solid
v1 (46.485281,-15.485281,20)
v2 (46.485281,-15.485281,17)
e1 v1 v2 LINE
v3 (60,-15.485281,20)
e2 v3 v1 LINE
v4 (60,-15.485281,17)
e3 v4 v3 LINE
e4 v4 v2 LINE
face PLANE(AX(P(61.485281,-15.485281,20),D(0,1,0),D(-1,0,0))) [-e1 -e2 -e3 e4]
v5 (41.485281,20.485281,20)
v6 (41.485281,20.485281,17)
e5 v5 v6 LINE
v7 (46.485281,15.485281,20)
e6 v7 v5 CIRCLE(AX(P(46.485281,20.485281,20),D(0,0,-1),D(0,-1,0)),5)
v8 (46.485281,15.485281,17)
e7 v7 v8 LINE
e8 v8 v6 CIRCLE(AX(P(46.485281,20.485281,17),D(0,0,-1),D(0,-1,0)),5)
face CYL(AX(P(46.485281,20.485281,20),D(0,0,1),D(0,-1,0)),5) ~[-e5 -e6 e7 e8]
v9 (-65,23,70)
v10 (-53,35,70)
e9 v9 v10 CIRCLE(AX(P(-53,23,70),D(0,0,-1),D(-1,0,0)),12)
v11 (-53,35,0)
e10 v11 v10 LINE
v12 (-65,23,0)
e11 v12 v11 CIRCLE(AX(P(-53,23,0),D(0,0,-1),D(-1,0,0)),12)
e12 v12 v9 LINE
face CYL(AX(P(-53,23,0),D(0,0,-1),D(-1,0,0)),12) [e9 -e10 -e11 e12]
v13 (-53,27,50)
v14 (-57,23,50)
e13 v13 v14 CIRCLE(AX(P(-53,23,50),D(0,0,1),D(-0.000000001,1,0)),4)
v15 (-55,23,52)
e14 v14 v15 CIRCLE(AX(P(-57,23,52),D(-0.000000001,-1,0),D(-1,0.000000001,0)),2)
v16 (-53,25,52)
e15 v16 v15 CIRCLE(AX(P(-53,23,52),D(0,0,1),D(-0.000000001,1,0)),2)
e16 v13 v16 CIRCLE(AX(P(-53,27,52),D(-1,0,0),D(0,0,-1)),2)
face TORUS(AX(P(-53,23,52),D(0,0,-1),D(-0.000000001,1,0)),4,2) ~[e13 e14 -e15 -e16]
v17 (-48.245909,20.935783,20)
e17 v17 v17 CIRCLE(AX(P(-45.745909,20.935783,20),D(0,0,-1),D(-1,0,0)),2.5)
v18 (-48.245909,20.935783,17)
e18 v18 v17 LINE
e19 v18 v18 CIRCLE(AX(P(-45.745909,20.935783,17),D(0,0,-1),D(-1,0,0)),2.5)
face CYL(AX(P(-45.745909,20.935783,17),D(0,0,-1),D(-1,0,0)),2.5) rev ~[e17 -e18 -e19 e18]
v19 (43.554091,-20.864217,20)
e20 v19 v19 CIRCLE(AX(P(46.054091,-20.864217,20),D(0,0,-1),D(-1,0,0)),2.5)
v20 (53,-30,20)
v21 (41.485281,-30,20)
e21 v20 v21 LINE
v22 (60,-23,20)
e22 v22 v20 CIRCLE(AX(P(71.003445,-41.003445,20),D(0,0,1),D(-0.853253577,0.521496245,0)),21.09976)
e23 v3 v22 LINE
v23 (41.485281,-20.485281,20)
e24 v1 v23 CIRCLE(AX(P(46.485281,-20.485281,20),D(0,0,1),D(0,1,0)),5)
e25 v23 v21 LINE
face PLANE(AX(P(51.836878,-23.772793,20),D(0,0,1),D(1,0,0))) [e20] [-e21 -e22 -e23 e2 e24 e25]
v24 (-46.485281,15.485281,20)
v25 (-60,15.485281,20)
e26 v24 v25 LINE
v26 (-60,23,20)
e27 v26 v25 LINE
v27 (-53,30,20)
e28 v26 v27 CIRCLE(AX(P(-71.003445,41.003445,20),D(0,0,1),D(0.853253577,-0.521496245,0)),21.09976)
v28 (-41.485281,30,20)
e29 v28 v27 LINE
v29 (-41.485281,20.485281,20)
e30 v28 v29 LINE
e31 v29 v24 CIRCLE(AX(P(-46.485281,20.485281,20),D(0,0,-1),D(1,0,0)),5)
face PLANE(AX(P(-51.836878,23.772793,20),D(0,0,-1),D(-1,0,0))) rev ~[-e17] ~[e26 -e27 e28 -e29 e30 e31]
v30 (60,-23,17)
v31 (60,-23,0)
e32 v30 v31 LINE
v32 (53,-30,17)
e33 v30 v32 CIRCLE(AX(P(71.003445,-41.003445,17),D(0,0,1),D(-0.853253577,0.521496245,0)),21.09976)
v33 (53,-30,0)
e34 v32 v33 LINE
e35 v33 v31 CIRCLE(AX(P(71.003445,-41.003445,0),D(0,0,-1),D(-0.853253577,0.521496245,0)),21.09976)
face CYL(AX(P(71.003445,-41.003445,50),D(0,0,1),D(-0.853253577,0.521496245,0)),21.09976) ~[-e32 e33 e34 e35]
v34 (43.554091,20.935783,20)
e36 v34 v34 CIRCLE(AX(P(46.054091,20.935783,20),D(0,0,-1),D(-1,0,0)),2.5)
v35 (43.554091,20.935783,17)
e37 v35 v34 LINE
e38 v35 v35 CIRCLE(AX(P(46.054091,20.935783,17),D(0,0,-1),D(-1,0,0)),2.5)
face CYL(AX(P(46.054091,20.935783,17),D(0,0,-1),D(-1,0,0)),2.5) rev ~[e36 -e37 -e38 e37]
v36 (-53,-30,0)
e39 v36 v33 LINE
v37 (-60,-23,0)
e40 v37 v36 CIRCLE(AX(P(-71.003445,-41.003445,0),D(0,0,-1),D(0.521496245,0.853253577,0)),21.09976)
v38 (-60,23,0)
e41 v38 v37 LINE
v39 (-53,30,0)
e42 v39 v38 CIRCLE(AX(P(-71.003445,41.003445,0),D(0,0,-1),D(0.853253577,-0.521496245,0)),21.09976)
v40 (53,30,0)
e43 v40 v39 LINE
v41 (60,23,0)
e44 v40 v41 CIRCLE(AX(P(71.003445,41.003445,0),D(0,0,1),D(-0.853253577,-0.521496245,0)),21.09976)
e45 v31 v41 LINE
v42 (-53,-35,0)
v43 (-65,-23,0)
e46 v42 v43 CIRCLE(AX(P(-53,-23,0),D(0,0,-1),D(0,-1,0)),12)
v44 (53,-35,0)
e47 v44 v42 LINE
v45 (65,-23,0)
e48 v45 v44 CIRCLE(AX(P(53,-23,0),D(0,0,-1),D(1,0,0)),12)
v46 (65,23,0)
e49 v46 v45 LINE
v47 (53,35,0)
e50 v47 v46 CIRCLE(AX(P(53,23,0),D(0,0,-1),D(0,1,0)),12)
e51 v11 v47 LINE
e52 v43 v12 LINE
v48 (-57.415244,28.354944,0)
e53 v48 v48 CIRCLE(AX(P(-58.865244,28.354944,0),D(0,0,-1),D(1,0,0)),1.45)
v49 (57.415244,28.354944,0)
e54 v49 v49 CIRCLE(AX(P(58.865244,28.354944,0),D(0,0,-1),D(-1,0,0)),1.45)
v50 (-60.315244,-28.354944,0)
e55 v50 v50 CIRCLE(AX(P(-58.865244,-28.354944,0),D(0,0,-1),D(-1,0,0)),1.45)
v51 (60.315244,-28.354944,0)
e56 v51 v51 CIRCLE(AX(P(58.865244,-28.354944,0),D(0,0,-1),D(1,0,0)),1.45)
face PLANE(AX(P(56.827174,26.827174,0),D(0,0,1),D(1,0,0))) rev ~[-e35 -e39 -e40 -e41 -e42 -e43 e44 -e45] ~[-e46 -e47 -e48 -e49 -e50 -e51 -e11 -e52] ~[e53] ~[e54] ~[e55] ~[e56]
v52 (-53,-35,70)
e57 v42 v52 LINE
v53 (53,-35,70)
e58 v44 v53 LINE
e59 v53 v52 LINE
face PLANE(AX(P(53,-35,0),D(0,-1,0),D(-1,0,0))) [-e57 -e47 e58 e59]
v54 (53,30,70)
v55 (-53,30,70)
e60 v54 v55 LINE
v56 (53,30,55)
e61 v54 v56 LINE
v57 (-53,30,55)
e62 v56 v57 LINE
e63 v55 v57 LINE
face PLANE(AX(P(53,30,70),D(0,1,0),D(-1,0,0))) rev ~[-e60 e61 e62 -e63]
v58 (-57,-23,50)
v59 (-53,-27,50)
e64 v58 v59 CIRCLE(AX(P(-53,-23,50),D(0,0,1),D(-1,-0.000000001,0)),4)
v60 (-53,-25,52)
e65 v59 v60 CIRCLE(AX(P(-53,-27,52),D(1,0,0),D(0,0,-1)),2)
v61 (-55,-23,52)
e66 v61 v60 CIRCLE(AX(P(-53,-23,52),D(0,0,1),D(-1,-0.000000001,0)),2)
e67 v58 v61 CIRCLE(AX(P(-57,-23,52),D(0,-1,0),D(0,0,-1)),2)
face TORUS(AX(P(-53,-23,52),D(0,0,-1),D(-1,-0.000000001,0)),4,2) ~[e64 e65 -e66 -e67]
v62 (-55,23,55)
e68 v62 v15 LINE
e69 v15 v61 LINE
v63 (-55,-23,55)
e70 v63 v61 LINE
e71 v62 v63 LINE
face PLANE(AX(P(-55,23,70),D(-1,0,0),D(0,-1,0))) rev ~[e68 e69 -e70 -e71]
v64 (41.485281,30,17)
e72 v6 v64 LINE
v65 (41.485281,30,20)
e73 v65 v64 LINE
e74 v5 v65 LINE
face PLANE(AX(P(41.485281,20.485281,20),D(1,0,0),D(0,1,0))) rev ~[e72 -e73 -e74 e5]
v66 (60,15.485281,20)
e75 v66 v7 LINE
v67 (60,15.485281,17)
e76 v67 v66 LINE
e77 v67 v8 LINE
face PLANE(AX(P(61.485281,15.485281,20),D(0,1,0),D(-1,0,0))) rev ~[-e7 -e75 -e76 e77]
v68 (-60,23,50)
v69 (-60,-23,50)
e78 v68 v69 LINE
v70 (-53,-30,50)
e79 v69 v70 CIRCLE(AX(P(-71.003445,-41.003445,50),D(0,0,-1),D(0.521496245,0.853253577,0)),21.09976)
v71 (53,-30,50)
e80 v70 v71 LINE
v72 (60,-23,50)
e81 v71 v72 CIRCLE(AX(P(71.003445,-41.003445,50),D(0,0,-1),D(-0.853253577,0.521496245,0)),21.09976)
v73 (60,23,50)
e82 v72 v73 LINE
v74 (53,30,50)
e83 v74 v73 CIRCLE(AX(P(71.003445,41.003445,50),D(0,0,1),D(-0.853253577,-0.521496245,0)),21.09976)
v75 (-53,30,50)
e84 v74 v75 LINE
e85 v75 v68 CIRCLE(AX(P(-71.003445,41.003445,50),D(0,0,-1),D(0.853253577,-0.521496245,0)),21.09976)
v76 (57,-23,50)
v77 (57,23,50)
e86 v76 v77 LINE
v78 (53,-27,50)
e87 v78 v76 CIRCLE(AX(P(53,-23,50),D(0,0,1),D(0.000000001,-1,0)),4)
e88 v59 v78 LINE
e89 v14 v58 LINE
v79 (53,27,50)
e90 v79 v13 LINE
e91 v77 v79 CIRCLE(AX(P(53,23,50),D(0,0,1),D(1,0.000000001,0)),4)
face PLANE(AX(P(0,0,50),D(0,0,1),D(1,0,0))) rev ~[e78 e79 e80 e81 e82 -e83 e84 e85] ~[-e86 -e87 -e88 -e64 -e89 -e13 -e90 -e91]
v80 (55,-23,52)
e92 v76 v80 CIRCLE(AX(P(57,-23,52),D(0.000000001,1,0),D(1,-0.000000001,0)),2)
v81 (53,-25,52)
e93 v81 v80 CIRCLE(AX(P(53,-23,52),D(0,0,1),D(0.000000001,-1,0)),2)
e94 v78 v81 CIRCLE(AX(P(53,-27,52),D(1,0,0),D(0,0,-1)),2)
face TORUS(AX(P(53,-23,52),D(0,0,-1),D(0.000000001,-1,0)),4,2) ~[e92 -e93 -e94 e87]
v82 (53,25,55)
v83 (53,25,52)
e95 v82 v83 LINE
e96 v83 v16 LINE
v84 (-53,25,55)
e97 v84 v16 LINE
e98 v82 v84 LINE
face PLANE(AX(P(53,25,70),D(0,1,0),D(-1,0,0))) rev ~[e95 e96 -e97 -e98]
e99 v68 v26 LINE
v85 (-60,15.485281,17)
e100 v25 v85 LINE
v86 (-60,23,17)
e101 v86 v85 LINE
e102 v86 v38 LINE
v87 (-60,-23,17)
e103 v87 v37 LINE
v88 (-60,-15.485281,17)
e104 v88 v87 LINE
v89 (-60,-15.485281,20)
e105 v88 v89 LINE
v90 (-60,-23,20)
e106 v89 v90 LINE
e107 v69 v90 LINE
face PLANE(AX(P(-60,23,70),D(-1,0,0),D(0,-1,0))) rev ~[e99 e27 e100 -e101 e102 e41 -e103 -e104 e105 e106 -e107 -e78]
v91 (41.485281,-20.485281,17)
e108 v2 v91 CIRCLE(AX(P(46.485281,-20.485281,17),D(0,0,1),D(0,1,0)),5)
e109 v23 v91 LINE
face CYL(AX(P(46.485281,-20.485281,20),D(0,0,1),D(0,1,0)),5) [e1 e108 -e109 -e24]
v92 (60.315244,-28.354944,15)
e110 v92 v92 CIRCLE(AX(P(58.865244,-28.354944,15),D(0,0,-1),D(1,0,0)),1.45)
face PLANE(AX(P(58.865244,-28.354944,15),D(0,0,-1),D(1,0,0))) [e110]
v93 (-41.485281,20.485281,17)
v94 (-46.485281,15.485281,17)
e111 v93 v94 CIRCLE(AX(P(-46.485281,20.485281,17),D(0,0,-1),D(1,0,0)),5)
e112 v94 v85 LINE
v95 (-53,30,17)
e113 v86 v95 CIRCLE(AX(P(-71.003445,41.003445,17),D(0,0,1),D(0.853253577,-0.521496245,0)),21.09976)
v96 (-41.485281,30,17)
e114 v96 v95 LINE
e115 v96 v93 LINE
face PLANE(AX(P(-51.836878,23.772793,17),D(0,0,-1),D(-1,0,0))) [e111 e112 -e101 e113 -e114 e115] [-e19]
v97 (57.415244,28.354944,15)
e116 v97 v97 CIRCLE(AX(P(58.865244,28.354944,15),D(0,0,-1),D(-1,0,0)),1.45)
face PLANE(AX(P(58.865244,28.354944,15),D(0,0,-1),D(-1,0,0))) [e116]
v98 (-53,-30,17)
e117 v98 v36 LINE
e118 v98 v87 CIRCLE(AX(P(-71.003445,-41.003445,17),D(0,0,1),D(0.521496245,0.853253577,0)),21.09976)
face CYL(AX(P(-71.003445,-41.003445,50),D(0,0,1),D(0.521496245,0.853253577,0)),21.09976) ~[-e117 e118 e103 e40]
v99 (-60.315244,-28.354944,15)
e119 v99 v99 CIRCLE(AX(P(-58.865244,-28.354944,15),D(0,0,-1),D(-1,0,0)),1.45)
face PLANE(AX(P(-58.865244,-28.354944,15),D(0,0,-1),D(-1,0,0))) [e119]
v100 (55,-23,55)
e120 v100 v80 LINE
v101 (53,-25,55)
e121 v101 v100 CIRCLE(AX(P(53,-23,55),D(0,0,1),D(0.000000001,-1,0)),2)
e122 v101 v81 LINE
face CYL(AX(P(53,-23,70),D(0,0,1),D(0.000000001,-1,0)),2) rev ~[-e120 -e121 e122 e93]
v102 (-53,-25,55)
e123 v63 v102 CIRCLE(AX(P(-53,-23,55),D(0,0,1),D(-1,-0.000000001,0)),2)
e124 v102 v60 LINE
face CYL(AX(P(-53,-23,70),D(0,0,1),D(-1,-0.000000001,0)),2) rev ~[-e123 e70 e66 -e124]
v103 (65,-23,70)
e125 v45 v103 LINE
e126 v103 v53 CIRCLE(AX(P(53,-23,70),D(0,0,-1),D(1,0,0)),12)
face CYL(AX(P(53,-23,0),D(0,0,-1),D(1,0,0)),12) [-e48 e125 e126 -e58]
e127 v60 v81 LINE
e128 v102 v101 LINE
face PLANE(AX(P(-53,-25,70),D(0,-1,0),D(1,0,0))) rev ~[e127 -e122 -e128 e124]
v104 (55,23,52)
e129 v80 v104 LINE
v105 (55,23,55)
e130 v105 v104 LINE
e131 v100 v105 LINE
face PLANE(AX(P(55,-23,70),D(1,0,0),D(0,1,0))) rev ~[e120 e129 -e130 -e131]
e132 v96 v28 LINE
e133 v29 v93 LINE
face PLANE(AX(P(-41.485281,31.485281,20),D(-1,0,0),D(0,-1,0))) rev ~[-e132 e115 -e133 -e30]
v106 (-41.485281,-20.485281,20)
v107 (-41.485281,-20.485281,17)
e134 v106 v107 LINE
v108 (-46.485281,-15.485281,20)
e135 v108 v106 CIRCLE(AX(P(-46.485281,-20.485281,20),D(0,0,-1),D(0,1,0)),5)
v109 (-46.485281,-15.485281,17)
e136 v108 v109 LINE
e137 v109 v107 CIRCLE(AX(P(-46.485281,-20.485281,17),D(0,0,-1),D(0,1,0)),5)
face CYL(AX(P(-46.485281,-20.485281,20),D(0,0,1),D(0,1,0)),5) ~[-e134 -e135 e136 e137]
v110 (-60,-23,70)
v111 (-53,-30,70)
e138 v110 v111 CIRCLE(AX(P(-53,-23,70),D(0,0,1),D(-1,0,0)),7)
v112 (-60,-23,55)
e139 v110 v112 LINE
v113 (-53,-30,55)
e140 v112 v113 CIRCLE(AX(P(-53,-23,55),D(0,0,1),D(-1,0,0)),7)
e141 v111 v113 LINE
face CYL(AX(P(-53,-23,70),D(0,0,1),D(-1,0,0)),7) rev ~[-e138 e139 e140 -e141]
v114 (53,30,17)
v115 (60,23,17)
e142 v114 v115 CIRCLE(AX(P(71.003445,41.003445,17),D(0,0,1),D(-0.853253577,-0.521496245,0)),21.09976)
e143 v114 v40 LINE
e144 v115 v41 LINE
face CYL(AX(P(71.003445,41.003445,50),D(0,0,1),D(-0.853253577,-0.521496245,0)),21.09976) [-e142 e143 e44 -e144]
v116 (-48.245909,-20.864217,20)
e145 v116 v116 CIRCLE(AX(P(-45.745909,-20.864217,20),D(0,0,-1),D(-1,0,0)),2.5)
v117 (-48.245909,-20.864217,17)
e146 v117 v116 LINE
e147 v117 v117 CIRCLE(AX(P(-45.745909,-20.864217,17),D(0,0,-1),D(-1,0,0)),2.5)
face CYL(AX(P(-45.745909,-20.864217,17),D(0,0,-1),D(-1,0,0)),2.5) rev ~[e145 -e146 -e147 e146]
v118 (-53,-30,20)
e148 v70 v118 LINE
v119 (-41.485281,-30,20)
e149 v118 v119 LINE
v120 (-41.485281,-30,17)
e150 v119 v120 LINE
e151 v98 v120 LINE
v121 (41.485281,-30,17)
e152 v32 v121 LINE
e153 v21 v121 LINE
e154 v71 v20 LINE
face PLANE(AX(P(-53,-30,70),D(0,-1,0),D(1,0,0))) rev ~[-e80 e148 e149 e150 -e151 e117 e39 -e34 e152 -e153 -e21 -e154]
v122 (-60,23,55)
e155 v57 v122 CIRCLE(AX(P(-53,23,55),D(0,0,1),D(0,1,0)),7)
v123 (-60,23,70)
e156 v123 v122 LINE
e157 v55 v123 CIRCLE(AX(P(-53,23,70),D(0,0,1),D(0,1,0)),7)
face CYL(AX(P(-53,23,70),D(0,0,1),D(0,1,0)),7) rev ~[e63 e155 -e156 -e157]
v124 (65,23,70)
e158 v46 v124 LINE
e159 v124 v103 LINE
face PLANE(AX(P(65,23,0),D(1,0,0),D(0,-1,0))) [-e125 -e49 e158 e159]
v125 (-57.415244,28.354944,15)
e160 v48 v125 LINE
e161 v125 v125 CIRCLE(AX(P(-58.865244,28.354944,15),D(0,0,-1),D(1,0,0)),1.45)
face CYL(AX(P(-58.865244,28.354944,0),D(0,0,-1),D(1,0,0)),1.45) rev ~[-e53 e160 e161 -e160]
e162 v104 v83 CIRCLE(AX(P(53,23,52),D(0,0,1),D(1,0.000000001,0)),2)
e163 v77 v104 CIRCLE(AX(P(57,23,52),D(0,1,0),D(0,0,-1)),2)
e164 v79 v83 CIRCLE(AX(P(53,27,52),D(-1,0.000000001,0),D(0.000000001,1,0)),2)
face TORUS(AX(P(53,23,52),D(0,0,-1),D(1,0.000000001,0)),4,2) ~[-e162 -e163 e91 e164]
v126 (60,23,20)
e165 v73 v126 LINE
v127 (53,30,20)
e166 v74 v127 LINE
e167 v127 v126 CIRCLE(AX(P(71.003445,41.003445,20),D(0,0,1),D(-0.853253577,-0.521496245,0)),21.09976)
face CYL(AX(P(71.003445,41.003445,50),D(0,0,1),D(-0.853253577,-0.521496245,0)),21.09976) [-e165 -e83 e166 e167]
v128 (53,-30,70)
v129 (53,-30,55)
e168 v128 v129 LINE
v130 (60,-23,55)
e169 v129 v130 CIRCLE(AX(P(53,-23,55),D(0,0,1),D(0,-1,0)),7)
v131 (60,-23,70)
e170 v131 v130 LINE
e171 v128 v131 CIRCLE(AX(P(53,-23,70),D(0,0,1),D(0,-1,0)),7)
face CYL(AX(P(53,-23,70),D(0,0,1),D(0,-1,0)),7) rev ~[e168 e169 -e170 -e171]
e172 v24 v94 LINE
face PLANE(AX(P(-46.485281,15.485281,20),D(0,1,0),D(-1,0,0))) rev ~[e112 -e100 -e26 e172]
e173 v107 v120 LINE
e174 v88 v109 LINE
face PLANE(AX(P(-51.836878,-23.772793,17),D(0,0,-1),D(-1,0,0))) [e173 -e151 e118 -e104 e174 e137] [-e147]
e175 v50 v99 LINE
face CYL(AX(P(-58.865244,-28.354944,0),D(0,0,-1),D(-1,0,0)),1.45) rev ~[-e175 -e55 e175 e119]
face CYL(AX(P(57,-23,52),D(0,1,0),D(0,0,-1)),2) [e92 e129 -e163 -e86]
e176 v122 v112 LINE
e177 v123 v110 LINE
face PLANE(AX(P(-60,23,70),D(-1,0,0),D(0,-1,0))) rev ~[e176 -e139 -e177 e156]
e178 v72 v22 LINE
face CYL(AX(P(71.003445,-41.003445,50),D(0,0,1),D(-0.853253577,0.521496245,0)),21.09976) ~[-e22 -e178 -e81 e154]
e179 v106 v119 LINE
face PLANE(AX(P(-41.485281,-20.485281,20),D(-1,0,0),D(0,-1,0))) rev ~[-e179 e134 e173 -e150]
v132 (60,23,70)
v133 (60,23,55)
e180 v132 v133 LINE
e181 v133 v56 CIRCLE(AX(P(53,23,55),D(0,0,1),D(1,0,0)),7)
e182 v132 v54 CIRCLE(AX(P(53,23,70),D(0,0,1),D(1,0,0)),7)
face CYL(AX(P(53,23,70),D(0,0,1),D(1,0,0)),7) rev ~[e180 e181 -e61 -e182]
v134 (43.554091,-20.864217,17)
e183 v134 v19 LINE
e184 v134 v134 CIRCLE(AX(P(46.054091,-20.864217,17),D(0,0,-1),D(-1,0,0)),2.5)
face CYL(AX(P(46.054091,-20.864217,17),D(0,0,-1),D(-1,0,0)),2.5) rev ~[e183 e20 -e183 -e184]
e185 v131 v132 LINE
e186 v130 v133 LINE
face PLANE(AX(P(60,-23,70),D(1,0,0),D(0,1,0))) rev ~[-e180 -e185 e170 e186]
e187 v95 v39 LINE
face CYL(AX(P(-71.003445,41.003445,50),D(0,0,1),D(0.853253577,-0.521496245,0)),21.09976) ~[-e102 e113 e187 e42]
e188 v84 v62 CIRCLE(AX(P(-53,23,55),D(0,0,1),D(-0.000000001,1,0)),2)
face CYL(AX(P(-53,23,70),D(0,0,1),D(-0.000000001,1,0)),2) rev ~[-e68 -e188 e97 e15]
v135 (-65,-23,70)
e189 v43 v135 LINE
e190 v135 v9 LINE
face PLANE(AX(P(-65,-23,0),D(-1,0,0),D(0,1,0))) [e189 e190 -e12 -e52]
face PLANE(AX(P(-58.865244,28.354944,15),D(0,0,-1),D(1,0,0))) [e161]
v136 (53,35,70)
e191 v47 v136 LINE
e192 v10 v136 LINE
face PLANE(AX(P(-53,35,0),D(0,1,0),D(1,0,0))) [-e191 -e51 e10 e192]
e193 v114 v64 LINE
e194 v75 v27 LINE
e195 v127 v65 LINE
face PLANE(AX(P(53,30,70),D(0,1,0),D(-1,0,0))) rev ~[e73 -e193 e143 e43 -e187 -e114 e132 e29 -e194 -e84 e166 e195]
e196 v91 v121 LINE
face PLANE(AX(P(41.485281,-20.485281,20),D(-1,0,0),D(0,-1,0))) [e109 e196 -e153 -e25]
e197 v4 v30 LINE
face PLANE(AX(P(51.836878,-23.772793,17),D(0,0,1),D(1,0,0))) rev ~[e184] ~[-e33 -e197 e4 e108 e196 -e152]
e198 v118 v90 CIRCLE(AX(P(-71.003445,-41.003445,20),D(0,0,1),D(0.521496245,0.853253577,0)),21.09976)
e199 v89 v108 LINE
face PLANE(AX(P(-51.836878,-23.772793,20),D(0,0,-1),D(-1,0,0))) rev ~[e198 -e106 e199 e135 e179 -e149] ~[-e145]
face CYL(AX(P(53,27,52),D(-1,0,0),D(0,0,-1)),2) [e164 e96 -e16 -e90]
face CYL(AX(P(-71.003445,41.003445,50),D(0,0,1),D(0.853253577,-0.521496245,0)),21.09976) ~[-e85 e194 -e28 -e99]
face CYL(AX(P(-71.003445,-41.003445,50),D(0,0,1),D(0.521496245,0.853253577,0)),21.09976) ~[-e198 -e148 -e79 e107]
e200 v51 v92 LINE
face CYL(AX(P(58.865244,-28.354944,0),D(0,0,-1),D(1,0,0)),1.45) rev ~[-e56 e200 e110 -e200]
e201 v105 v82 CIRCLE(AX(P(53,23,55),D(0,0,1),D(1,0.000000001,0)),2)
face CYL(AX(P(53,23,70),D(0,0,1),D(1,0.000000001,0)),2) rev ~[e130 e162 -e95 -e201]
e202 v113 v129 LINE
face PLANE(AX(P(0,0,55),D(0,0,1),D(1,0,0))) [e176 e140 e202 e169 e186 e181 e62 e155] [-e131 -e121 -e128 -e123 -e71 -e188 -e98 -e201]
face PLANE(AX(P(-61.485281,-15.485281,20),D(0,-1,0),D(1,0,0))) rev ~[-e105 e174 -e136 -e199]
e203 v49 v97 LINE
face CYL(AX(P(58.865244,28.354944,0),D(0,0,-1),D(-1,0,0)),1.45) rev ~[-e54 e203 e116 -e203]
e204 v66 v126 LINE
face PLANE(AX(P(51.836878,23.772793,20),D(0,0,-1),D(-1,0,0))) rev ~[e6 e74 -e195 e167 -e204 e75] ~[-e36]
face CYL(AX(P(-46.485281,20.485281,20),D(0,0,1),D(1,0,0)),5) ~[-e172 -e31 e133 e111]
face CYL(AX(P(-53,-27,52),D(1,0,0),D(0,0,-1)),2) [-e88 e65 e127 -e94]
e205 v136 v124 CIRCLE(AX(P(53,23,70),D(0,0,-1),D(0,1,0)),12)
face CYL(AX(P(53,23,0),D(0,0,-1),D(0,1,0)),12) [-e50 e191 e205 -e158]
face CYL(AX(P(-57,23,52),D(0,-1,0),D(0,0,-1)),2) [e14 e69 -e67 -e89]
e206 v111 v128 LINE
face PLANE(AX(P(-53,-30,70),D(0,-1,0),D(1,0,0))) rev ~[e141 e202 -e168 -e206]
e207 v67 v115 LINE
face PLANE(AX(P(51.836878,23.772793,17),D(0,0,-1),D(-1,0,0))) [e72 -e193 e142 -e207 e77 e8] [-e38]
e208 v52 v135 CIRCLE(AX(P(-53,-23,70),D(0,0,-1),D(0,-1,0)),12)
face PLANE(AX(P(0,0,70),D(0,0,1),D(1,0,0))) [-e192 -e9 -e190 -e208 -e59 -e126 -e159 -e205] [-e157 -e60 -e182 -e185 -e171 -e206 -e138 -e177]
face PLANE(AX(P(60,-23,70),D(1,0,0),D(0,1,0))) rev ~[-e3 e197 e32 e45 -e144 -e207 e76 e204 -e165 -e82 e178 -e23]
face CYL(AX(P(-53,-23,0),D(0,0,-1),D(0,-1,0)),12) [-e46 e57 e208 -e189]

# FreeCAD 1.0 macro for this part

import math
import FreeCAD as App
import Part
import Sketcher
Q = App.Units.Quantity


def edges_at(feature, points):
    """Names of the edges that pass closest to the given points."""
    edges = feature.Shape.Edges
    near = lambda p: min(range(len(edges)), key=lambda i: edges[i].distToShape(Part.Vertex(*p))[0])
    return sorted({f"Edge{near(p) + 1}" for p in points})

doc = App.newDocument("Part")
body = doc.addObject("PartDesign::Body", "Body")

sketch1 = body.newObject("Sketcher::SketchObject", "Sketch")
sketch1.AttachmentSupport = (doc.getObject("XY_Plane"), [""])
sketch1.MapMode = "FlatFace"
sketch1.addGeometry([
    Part.LineSegment(App.Vector(53, 35, 0), App.Vector(-53, 35, 0)),
    Part.ArcOfCircle(Part.Circle(App.Vector(-53, 23, 0), App.Vector(0, 0, 1), 12), math.radians(90), math.radians(180)),
    Part.LineSegment(App.Vector(-65, 23, 0), App.Vector(-65, -23, 0)),
    Part.ArcOfCircle(Part.Circle(App.Vector(-53, -23, 0), App.Vector(0, 0, 1), 12), math.radians(-180), math.radians(-90)),
    Part.LineSegment(App.Vector(-53, -35, 0), App.Vector(53, -35, 0)),
    Part.ArcOfCircle(Part.Circle(App.Vector(53, -23, 0), App.Vector(0, 0, 1), 12), math.radians(-90), math.radians(0)),
    Part.LineSegment(App.Vector(65, -23, 0), App.Vector(65, 23, 0)),
    Part.ArcOfCircle(Part.Circle(App.Vector(53, 23, 0), App.Vector(0, 0, 1), 12), math.radians(0), math.radians(90)),
], False)
sketch1.addConstraint([
    Sketcher.Constraint("Tangent", 0, 2, 1, 1),
    Sketcher.Constraint("Tangent", 1, 2, 2, 1),
    Sketcher.Constraint("Tangent", 2, 2, 3, 1),
    Sketcher.Constraint("Tangent", 3, 2, 4, 1),
    Sketcher.Constraint("Tangent", 4, 2, 5, 1),
    Sketcher.Constraint("Tangent", 5, 2, 6, 1),
    Sketcher.Constraint("Tangent", 6, 2, 7, 1),
    Sketcher.Constraint("Tangent", 7, 2, 0, 1),
    Sketcher.Constraint("Horizontal", 0),
    Sketcher.Constraint("Vertical", 2),
    Sketcher.Constraint("Horizontal", 4),
    Sketcher.Constraint("Vertical", 6),
    Sketcher.Constraint("Equal", 1, 3),
    Sketcher.Constraint("Equal", 3, 5),
    Sketcher.Constraint("Equal", 5, 7),
    Sketcher.Constraint("Symmetric", 1, 3, 5, 3, -1, 1),
    Sketcher.Constraint("Radius", 1, Q("12 mm")),
    Sketcher.Constraint("DistanceX", 0, 2, 0, 1, Q("106 mm")),
    Sketcher.Constraint("DistanceY", 2, 2, 2, 1, Q("46 mm")),
])
pad1 = body.newObject("PartDesign::Pad", "Pad")
pad1.Profile = sketch1
pad1.Length = 70

sketch2 = body.newObject("Sketcher::SketchObject", "Sketch001")
sketch2.AttachmentSupport = (doc.getObject("XY_Plane"), [""])
sketch2.MapMode = "FlatFace"
sketch2.AttachmentOffset = App.Placement(App.Vector(0, 0, 70), App.Rotation())
sketch2.addGeometry([
    Part.LineSegment(App.Vector(-53, -30, 0), App.Vector(53, -30, 0)),
    Part.ArcOfCircle(Part.Circle(App.Vector(53, -23, 0), App.Vector(0, 0, 1), 7), math.radians(-90), math.radians(0)),
    Part.LineSegment(App.Vector(60, -23, 0), App.Vector(60, 23, 0)),
    Part.ArcOfCircle(Part.Circle(App.Vector(53, 23, 0), App.Vector(0, 0, 1), 7), math.radians(0), math.radians(90)),
    Part.LineSegment(App.Vector(53, 30, 0), App.Vector(-53, 30, 0)),
    Part.ArcOfCircle(Part.Circle(App.Vector(-53, 23, 0), App.Vector(0, 0, 1), 7), math.radians(90), math.radians(180)),
    Part.LineSegment(App.Vector(-60, 23, 0), App.Vector(-60, -23, 0)),
    Part.ArcOfCircle(Part.Circle(App.Vector(-53, -23, 0), App.Vector(0, 0, 1), 7), math.radians(-180), math.radians(-90)),
], False)
sketch2.addConstraint([
    Sketcher.Constraint("Tangent", 0, 2, 1, 1),
    Sketcher.Constraint("Tangent", 1, 2, 2, 1),
    Sketcher.Constraint("Tangent", 2, 2, 3, 1),
    Sketcher.Constraint("Tangent", 3, 2, 4, 1),
    Sketcher.Constraint("Tangent", 4, 2, 5, 1),
    Sketcher.Constraint("Tangent", 5, 2, 6, 1),
    Sketcher.Constraint("Tangent", 6, 2, 7, 1),
    Sketcher.Constraint("Tangent", 7, 2, 0, 1),
    Sketcher.Constraint("Horizontal", 0),
    Sketcher.Constraint("Vertical", 2),
    Sketcher.Constraint("Horizontal", 4),
    Sketcher.Constraint("Vertical", 6),
    Sketcher.Constraint("Equal", 1, 3),
    Sketcher.Constraint("Equal", 3, 5),
    Sketcher.Constraint("Equal", 5, 7),
    Sketcher.Constraint("Symmetric", 1, 3, 5, 3, -1, 1),
    Sketcher.Constraint("Radius", 1, Q("7 mm")),
    Sketcher.Constraint("DistanceX", 0, 1, 0, 2, Q("106 mm")),
    Sketcher.Constraint("DistanceY", 2, 1, 2, 2, Q("46 mm")),
])
pocket1 = body.newObject("PartDesign::Pocket", "Pocket")
pocket1.Profile = sketch2
pocket1.Length = 70

sketch3 = body.newObject("Sketcher::SketchObject", "Sketch002")
sketch3.AttachmentSupport = (doc.getObject("XY_Plane"), [""])
sketch3.MapMode = "FlatFace"
sketch3.AttachmentOffset = App.Placement(App.Vector(0, 0, 70), App.Rotation())
sketch3.addGeometry([
    Part.LineSegment(App.Vector(-53, -30, 0), App.Vector(53, -30, 0)),
    Part.ArcOfCircle(Part.Circle(App.Vector(53, -23, 0), App.Vector(0, 0, 1), 7), math.radians(-90), math.radians(0)),
    Part.LineSegment(App.Vector(60, -23, 0), App.Vector(60, 23, 0)),
    Part.ArcOfCircle(Part.Circle(App.Vector(53, 23, 0), App.Vector(0, 0, 1), 7), math.radians(0), math.radians(90)),
    Part.LineSegment(App.Vector(53, 30, 0), App.Vector(-53, 30, 0)),
    Part.ArcOfCircle(Part.Circle(App.Vector(-53, 23, 0), App.Vector(0, 0, 1), 7), math.radians(90), math.radians(180)),
    Part.LineSegment(App.Vector(-60, 23, 0), App.Vector(-60, -23, 0)),
    Part.ArcOfCircle(Part.Circle(App.Vector(-53, -23, 0), App.Vector(0, 0, 1), 7), math.radians(-180), math.radians(-90)),
    Part.LineSegment(App.Vector(53, -25, 0), App.Vector(-53, -25, 0)),
    Part.ArcOfCircle(Part.Circle(App.Vector(-53, -23, 0), App.Vector(0, 0, 1), 2), math.radians(-180), math.radians(-90)),
    Part.LineSegment(App.Vector(-55, -23, 0), App.Vector(-55, 23, 0)),
    Part.ArcOfCircle(Part.Circle(App.Vector(-53, 23, 0), App.Vector(0, 0, 1), 2), math.radians(90), math.radians(180)),
    Part.LineSegment(App.Vector(-53, 25, 0), App.Vector(53, 25, 0)),
    Part.ArcOfCircle(Part.Circle(App.Vector(53, 23, 0), App.Vector(0, 0, 1), 2), math.radians(0), math.radians(90)),
    Part.LineSegment(App.Vector(55, 23, 0), App.Vector(55, -23, 0)),
    Part.ArcOfCircle(Part.Circle(App.Vector(53, -23, 0), App.Vector(0, 0, 1), 2), math.radians(-90), math.radians(0)),
], False)
sketch3.addConstraint([
    Sketcher.Constraint("Tangent", 0, 2, 1, 1),
    Sketcher.Constraint("Tangent", 1, 2, 2, 1),
    Sketcher.Constraint("Tangent", 2, 2, 3, 1),
    Sketcher.Constraint("Tangent", 3, 2, 4, 1),
    Sketcher.Constraint("Tangent", 4, 2, 5, 1),
    Sketcher.Constraint("Tangent", 5, 2, 6, 1),
    Sketcher.Constraint("Tangent", 6, 2, 7, 1),
    Sketcher.Constraint("Tangent", 7, 2, 0, 1),
    Sketcher.Constraint("Tangent", 8, 2, 9, 2),
    Sketcher.Constraint("Tangent", 9, 1, 10, 1),
    Sketcher.Constraint("Tangent", 10, 2, 11, 2),
    Sketcher.Constraint("Tangent", 11, 1, 12, 1),
    Sketcher.Constraint("Tangent", 12, 2, 13, 2),
    Sketcher.Constraint("Tangent", 13, 1, 14, 1),
    Sketcher.Constraint("Tangent", 14, 2, 15, 2),
    Sketcher.Constraint("Tangent", 15, 1, 8, 1),
    Sketcher.Constraint("Horizontal", 0),
    Sketcher.Constraint("Vertical", 2),
    Sketcher.Constraint("Horizontal", 4),
    Sketcher.Constraint("Vertical", 6),
    Sketcher.Constraint("Horizontal", 8),
    Sketcher.Constraint("Vertical", 10),
    Sketcher.Constraint("Horizontal", 12),
    Sketcher.Constraint("Vertical", 14),
    Sketcher.Constraint("Coincident", 9, 3, 7, 3),
    Sketcher.Constraint("Coincident", 11, 3, 5, 3),
    Sketcher.Constraint("Coincident", 13, 3, 3, 3),
    Sketcher.Constraint("Equal", 1, 3),
    Sketcher.Constraint("Equal", 3, 5),
    Sketcher.Constraint("Equal", 5, 7),
    Sketcher.Constraint("Equal", 13, 15),
    Sketcher.Constraint("Symmetric", 1, 3, 5, 3, -1, 1),
    Sketcher.Constraint("Radius", 1, Q("7 mm")),
    Sketcher.Constraint("Radius", 9, Q("2 mm")),
    Sketcher.Constraint("DistanceX", 0, 1, 0, 2, Q("106 mm")),
    Sketcher.Constraint("DistanceY", 2, 1, 2, 2, Q("46 mm")),
])
pad2 = body.newObject("PartDesign::Pad", "Pad001")
pad2.Profile = sketch3
pad2.Length = 20
pad2.Reversed = True

sketch4 = body.newObject("Sketcher::SketchObject", "Sketch003")
sketch4.AttachmentSupport = (doc.getObject("XY_Plane"), [""])
sketch4.MapMode = "FlatFace"
sketch4.AttachmentOffset = App.Placement(App.Vector(0, 0, 70), App.Rotation())
sketch4.addGeometry([
    Part.LineSegment(App.Vector(-53, -30, 0), App.Vector(53, -30, 0)),
    Part.ArcOfCircle(Part.Circle(App.Vector(53, -23, 0), App.Vector(0, 0, 1), 7), math.radians(-90), math.radians(0)),
    Part.LineSegment(App.Vector(60, -23, 0), App.Vector(60, 23, 0)),
    Part.ArcOfCircle(Part.Circle(App.Vector(53, 23, 0), App.Vector(0, 0, 1), 7), math.radians(0), math.radians(90)),
    Part.LineSegment(App.Vector(53, 30, 0), App.Vector(-53, 30, 0)),
    Part.ArcOfCircle(Part.Circle(App.Vector(-53, 23, 0), App.Vector(0, 0, 1), 7), math.radians(90), math.radians(180)),
    Part.LineSegment(App.Vector(-60, 23, 0), App.Vector(-60, -23, 0)),
    Part.ArcOfCircle(Part.Circle(App.Vector(-53, -23, 0), App.Vector(0, 0, 1), 7), math.radians(-180), math.radians(-90)),
    Part.LineSegment(App.Vector(53, -25, 0), App.Vector(-53, -25, 0)),
    Part.ArcOfCircle(Part.Circle(App.Vector(-53, -23, 0), App.Vector(0, 0, 1), 2), math.radians(-180), math.radians(-90)),
    Part.LineSegment(App.Vector(-55, -23, 0), App.Vector(-55, 23, 0)),
    Part.ArcOfCircle(Part.Circle(App.Vector(-53, 23, 0), App.Vector(0, 0, 1), 2), math.radians(90), math.radians(180)),
    Part.LineSegment(App.Vector(-53, 25, 0), App.Vector(53, 25, 0)),
    Part.ArcOfCircle(Part.Circle(App.Vector(53, 23, 0), App.Vector(0, 0, 1), 2), math.radians(0), math.radians(90)),
    Part.LineSegment(App.Vector(55, 23, 0), App.Vector(55, -23, 0)),
    Part.ArcOfCircle(Part.Circle(App.Vector(53, -23, 0), App.Vector(0, 0, 1), 2), math.radians(-90), math.radians(0)),
], False)
sketch4.addConstraint([
    Sketcher.Constraint("Tangent", 0, 2, 1, 1),
    Sketcher.Constraint("Tangent", 1, 2, 2, 1),
    Sketcher.Constraint("Tangent", 2, 2, 3, 1),
    Sketcher.Constraint("Tangent", 3, 2, 4, 1),
    Sketcher.Constraint("Tangent", 4, 2, 5, 1),
    Sketcher.Constraint("Tangent", 5, 2, 6, 1),
    Sketcher.Constraint("Tangent", 6, 2, 7, 1),
    Sketcher.Constraint("Tangent", 7, 2, 0, 1),
    Sketcher.Constraint("Tangent", 8, 2, 9, 2),
    Sketcher.Constraint("Tangent", 9, 1, 10, 1),
    Sketcher.Constraint("Tangent", 10, 2, 11, 2),
    Sketcher.Constraint("Tangent", 11, 1, 12, 1),
    Sketcher.Constraint("Tangent", 12, 2, 13, 2),
    Sketcher.Constraint("Tangent", 13, 1, 14, 1),
    Sketcher.Constraint("Tangent", 14, 2, 15, 2),
    Sketcher.Constraint("Tangent", 15, 1, 8, 1),
    Sketcher.Constraint("Horizontal", 0),
    Sketcher.Constraint("Vertical", 2),
    Sketcher.Constraint("Horizontal", 4),
    Sketcher.Constraint("Vertical", 6),
    Sketcher.Constraint("Horizontal", 8),
    Sketcher.Constraint("Vertical", 10),
    Sketcher.Constraint("Horizontal", 12),
    Sketcher.Constraint("Vertical", 14),
    Sketcher.Constraint("Coincident", 9, 3, 7, 3),
    Sketcher.Constraint("Coincident", 11, 3, 5, 3),
    Sketcher.Constraint("Coincident", 13, 3, 3, 3),
    Sketcher.Constraint("Equal", 1, 3),
    Sketcher.Constraint("Equal", 3, 5),
    Sketcher.Constraint("Equal", 5, 7),
    Sketcher.Constraint("Equal", 13, 15),
    Sketcher.Constraint("Symmetric", 1, 3, 5, 3, -1, 1),
    Sketcher.Constraint("Radius", 1, Q("7 mm")),
    Sketcher.Constraint("Radius", 9, Q("2 mm")),
    Sketcher.Constraint("DistanceX", 0, 1, 0, 2, Q("106 mm")),
    Sketcher.Constraint("DistanceY", 2, 1, 2, 2, Q("46 mm")),
])
pocket2 = body.newObject("PartDesign::Pocket", "Pocket001")
pocket2.Profile = sketch4
pocket2.Length = 15

sketch5 = body.newObject("Sketcher::SketchObject", "Sketch004")
sketch5.AttachmentSupport = (doc.getObject("XY_Plane"), [""])
sketch5.MapMode = "FlatFace"
sketch5.AttachmentOffset = App.Placement(App.Vector(0, 0, 50), App.Rotation())
sketch5.addGeometry([
    Part.ArcOfCircle(Part.Circle(App.Vector(71, 41, 0), App.Vector(0, 0, 1), 21), math.radians(-149), math.radians(-121)),
    Part.ArcOfCircle(Part.Circle(App.Vector(53, 23, 0), App.Vector(0, 0, 1), 7), math.radians(0), math.radians(90)),
    Part.ArcOfCircle(Part.Circle(App.Vector(-71, 41, 0), App.Vector(0, 0, 1), 21), math.radians(-59), math.radians(-31)),
    Part.ArcOfCircle(Part.Circle(App.Vector(-53, 23, 0), App.Vector(0, 0, 1), 7), math.radians(90), math.radians(180)),
    Part.ArcOfCircle(Part.Circle(App.Vector(-53, -23, 0), App.Vector(0, 0, 1), 7), math.radians(-180), math.radians(-90)),
    Part.ArcOfCircle(Part.Circle(App.Vector(-71, -41, 0), App.Vector(0, 0, 1), 21), math.radians(31), math.radians(59)),
    Part.ArcOfCircle(Part.Circle(App.Vector(71, -41, 0), App.Vector(0, 0, 1), 21), math.radians(121), math.radians(149)),
    Part.ArcOfCircle(Part.Circle(App.Vector(53, -23, 0), App.Vector(0, 0, 1), 7), math.radians(-90), math.radians(0)),
], False)
sketch5.addConstraint([
    Sketcher.Constraint("Coincident", 0, 1, 1, 2),
    Sketcher.Constraint("Coincident", 1, 1, 0, 2),
    Sketcher.Constraint("Coincident", 2, 1, 3, 2),
    Sketcher.Constraint("Coincident", 3, 1, 2, 2),
    Sketcher.Constraint("Coincident", 4, 1, 5, 2),
    Sketcher.Constraint("Coincident", 5, 1, 4, 2),
    Sketcher.Constraint("Coincident", 6, 1, 7, 2),
    Sketcher.Constraint("Coincident", 7, 1, 6, 2),
    Sketcher.Constraint("Equal", 0, 2),
    Sketcher.Constraint("Equal", 1, 3),
    Sketcher.Constraint("Equal", 3, 4),
    Sketcher.Constraint("Equal", 2, 5),
    Sketcher.Constraint("Equal", 5, 6),
    Sketcher.Constraint("Equal", 4, 7),
    Sketcher.Constraint("Symmetric", 1, 3, 4, 3, -1, 1),
    Sketcher.Constraint("Symmetric", 0, 3, 5, 3, -1, 1),
    Sketcher.Constraint("Symmetric", 2, 3, 6, 3, -1, 1),
    Sketcher.Constraint("Symmetric", 3, 3, 7, 3, -1, 1),
    Sketcher.Constraint("Symmetric", 0, 3, 2, 3, -2),
    Sketcher.Constraint("Symmetric", 1, 3, 3, 3, -2),
    Sketcher.Constraint("Horizontal", 3, 3, 1, 1),
    Sketcher.Constraint("Vertical", 7, 3, 0, 1),
    Sketcher.Constraint("Radius", 1, Q("7 mm")),
    Sketcher.Constraint("DistanceX", -1, 1, 1, 3, Q("53 mm")),
    Sketcher.Constraint("DistanceY", -1, 1, 1, 3, Q("23 mm")),
    Sketcher.Constraint("Radius", 0, Q("21.09976 mm")),
])
pad3 = body.newObject("PartDesign::Pad", "Pad002")
pad3.Profile = sketch5
pad3.Length = 50
pad3.Reversed = True

sketch6 = body.newObject("Sketcher::SketchObject", "Sketch005")
sketch6.AttachmentSupport = (doc.getObject("XY_Plane"), [""])
sketch6.MapMode = "FlatFace"
sketch6.addGeometry([
    Part.Circle(App.Vector(58.9, 28.4, 0), App.Vector(0, 0, 1), 1.4),
    Part.Circle(App.Vector(-58.9, 28.4, 0), App.Vector(0, 0, 1), 1.4),
    Part.Circle(App.Vector(-58.9, -28.4, 0), App.Vector(0, 0, 1), 1.4),
    Part.Circle(App.Vector(58.9, -28.4, 0), App.Vector(0, 0, 1), 1.4),
], False)
sketch6.addConstraint([
    Sketcher.Constraint("Equal", 0, 1),
    Sketcher.Constraint("Equal", 1, 2),
    Sketcher.Constraint("Equal", 2, 3),
    Sketcher.Constraint("Symmetric", 0, 3, 2, 3, -1, 1),
    Sketcher.Constraint("Symmetric", 1, 3, 3, 3, -1, 1),
    Sketcher.Constraint("Symmetric", 0, 3, 1, 3, -2),
    Sketcher.Constraint("Diameter", 0, Q("2.9 mm")),
    Sketcher.Constraint("DistanceX", -1, 1, 0, 3, Q("58.865244 mm")),
    Sketcher.Constraint("DistanceY", -1, 1, 0, 3, Q("28.354944 mm")),
])
pocket3 = body.newObject("PartDesign::Pocket", "Pocket002")
pocket3.Profile = sketch6
pocket3.Length = 15
pocket3.Reversed = True
doc.recompute()

fillet = body.newObject("PartDesign::Fillet", "Fillet")
fillet.Base = (pocket3, edges_at(pocket3, [
    (0, -25, 50),
    (54.414, -24.414, 50),
    (55, 0, 50),
    (54.414, 24.414, 50),
    (0, 25, 50),
    (-54.414, 24.414, 50),
    (-55, 0, 50),
    (-54.414, -24.414, 50),
]))
fillet.Radius = 2

sketch7 = body.newObject("Sketcher::SketchObject", "Sketch006")
sketch7.AttachmentSupport = (doc.getObject("XY_Plane"), [""])
sketch7.MapMode = "FlatFace"
sketch7.AttachmentOffset = App.Placement(App.Vector(0, 0, 20), App.Rotation())
sketch7.addGeometry([
    Part.LineSegment(App.Vector(-61, 31, 0), App.Vector(-41, 31, 0)),
    Part.LineSegment(App.Vector(-41, 31, 0), App.Vector(-41, 20, 0)),
    Part.ArcOfCircle(Part.Circle(App.Vector(-46, 20, 0), App.Vector(0, 0, 1), 5), math.radians(-90), math.radians(0)),
    Part.LineSegment(App.Vector(-46, 15, 0), App.Vector(-61, 15, 0)),
    Part.LineSegment(App.Vector(-61, 15, 0), App.Vector(-61, 31, 0)),
    Part.LineSegment(App.Vector(61, 15, 0), App.Vector(46, 15, 0)),
    Part.ArcOfCircle(Part.Circle(App.Vector(46, 20, 0), App.Vector(0, 0, 1), 5), math.radians(180), math.radians(270)),
    Part.LineSegment(App.Vector(41, 20, 0), App.Vector(41, 31, 0)),
    Part.LineSegment(App.Vector(41, 31, 0), App.Vector(61, 31, 0)),
    Part.LineSegment(App.Vector(61, 31, 0), App.Vector(61, 15, 0)),
    Part.LineSegment(App.Vector(61, -15, 0), App.Vector(61, -31, 0)),
    Part.LineSegment(App.Vector(61, -31, 0), App.Vector(41, -31, 0)),
    Part.LineSegment(App.Vector(41, -31, 0), App.Vector(41, -20, 0)),
    Part.ArcOfCircle(Part.Circle(App.Vector(46, -20, 0), App.Vector(0, 0, 1), 5), math.radians(90), math.radians(180)),
    Part.LineSegment(App.Vector(46, -15, 0), App.Vector(61, -15, 0)),
    Part.LineSegment(App.Vector(-61, -15, 0), App.Vector(-46, -15, 0)),
    Part.ArcOfCircle(Part.Circle(App.Vector(-46, -20, 0), App.Vector(0, 0, 1), 5), math.radians(0), math.radians(90)),
    Part.LineSegment(App.Vector(-41, -20, 0), App.Vector(-41, -31, 0)),
    Part.LineSegment(App.Vector(-41, -31, 0), App.Vector(-61, -31, 0)),
    Part.LineSegment(App.Vector(-61, -31, 0), App.Vector(-61, -15, 0)),
], False)
sketch7.addConstraint([
    Sketcher.Constraint("Coincident", 0, 2, 1, 1),
    Sketcher.Constraint("Tangent", 1, 2, 2, 2),
    Sketcher.Constraint("Tangent", 2, 1, 3, 1),
    Sketcher.Constraint("Coincident", 3, 2, 4, 1),
    Sketcher.Constraint("Coincident", 4, 2, 0, 1),
    Sketcher.Constraint("Tangent", 5, 2, 6, 2),
    Sketcher.Constraint("Tangent", 6, 1, 7, 1),
    Sketcher.Constraint("Coincident", 7, 2, 8, 1),
    Sketcher.Constraint("Coincident", 8, 2, 9, 1),
    Sketcher.Constraint("Coincident", 9, 2, 5, 1),
    Sketcher.Constraint("Coincident", 10, 2, 11, 1),
    Sketcher.Constraint("Coincident", 11, 2, 12, 1),
    Sketcher.Constraint("Tangent", 12, 2, 13, 2),
    Sketcher.Constraint("Tangent", 13, 1, 14, 1),
    Sketcher.Constraint("Coincident", 14, 2, 10, 1),
    Sketcher.Constraint("Tangent", 15, 2, 16, 2),
    Sketcher.Constraint("Tangent", 16, 1, 17, 1),
    Sketcher.Constraint("Coincident", 17, 2, 18, 1),
    Sketcher.Constraint("Coincident", 18, 2, 19, 1),
    Sketcher.Constraint("Coincident", 19, 2, 15, 1),
    Sketcher.Constraint("Horizontal", 0),
    Sketcher.Constraint("Vertical", 1),
    Sketcher.Constraint("Horizontal", 3),
    Sketcher.Constraint("Vertical", 4),
    Sketcher.Constraint("Horizontal", 5),
    Sketcher.Constraint("Vertical", 7),
    Sketcher.Constraint("Horizontal", 8),
    Sketcher.Constraint("Vertical", 9),
    Sketcher.Constraint("Vertical", 10),
    Sketcher.Constraint("Horizontal", 11),
    Sketcher.Constraint("Vertical", 12),
    Sketcher.Constraint("Horizontal", 14),
    Sketcher.Constraint("Horizontal", 15),
    Sketcher.Constraint("Vertical", 17),
    Sketcher.Constraint("Horizontal", 18),
    Sketcher.Constraint("Vertical", 19),
    Sketcher.Constraint("Equal", 2, 6),
    Sketcher.Constraint("Equal", 6, 13),
    Sketcher.Constraint("Equal", 13, 16),
    Sketcher.Constraint("Symmetric", 2, 3, 13, 3, -1, 1),
    Sketcher.Constraint("Symmetric", 6, 3, 16, 3, -1, 1),
    Sketcher.Constraint("Symmetric", 4, 2, 10, 2, -1, 1),
    Sketcher.Constraint("Symmetric", 8, 2, 18, 2, -1, 1),
    Sketcher.Constraint("Symmetric", 2, 3, 6, 3, -2),
    Sketcher.Constraint("Symmetric", 4, 2, 8, 2, -2),
    Sketcher.Constraint("Radius", 2, Q("5 mm")),
    Sketcher.Constraint("DistanceX", 0, 1, 0, 2, Q("20 mm")),
    Sketcher.Constraint("DistanceY", 1, 2, 1, 1, Q("11 mm")),
    Sketcher.Constraint("DistanceX", 2, 3, -1, 1, Q("46.485281 mm")),
    Sketcher.Constraint("DistanceY", -1, 1, 2, 3, Q("20.485281 mm")),
])
pad4 = body.newObject("PartDesign::Pad", "Pad003")
pad4.Profile = sketch7
pad4.Length = 3
pad4.Reversed = True

sketch8 = body.newObject("Sketcher::SketchObject", "Sketch007")
sketch8.AttachmentSupport = (doc.getObject("XY_Plane"), [""])
sketch8.MapMode = "FlatFace"
sketch8.AttachmentOffset = App.Placement(App.Vector(0, 0, 17), App.Rotation())
sketch8.addGeometry([
    Part.Circle(App.Vector(46.1, 20.9, 0), App.Vector(0, 0, 1), 2.5),
    Part.Circle(App.Vector(-45.7, 20.9, 0), App.Vector(0, 0, 1), 2.5),
    Part.Circle(App.Vector(-45.7, -20.9, 0), App.Vector(0, 0, 1), 2.5),
    Part.Circle(App.Vector(46.1, -20.9, 0), App.Vector(0, 0, 1), 2.5),
], False)
sketch8.addConstraint([
    Sketcher.Constraint("Equal", 0, 1),
    Sketcher.Constraint("Equal", 1, 2),
    Sketcher.Constraint("Equal", 2, 3),
    Sketcher.Constraint("Horizontal", 0, 3, 1, 3),
    Sketcher.Constraint("Horizontal", 2, 3, 3, 3),
    Sketcher.Constraint("Vertical", 1, 3, 2, 3),
    Sketcher.Constraint("Vertical", 0, 3, 3, 3),
    Sketcher.Constraint("Diameter", 0, Q("5 mm")),
    Sketcher.Constraint("DistanceX", 1, 3, 0, 3, Q("91.8 mm")),
    Sketcher.Constraint("DistanceY", 2, 3, 1, 3, Q("41.8 mm")),
    Sketcher.Constraint("DistanceX", -1, 1, 0, 3, Q("46.054091 mm")),
    Sketcher.Constraint("DistanceY", -1, 1, 0, 3, Q("20.935783 mm")),
])
pocket4 = body.newObject("PartDesign::Pocket", "Pocket003")
pocket4.Profile = sketch8
pocket4.Length = 4
pocket4.Reversed = True

doc.recompute()
